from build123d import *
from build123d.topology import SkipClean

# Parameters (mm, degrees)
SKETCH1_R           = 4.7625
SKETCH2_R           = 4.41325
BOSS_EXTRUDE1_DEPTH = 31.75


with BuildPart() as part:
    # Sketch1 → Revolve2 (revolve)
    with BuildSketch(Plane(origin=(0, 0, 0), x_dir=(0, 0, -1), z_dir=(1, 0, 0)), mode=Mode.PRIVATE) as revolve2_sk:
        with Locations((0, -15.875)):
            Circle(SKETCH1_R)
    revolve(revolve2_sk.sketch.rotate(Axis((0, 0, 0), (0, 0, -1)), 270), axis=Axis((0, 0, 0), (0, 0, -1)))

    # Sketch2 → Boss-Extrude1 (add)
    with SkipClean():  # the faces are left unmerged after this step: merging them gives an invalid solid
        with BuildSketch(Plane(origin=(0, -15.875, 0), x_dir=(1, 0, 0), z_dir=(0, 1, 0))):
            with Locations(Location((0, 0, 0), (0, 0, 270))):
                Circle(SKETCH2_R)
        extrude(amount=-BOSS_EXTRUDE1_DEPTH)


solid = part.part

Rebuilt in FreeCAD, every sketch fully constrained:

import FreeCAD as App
import Part
import Sketcher
Q = App.Units.Quantity

doc = App.newDocument("Part")
params = doc.addObject("Spreadsheet::Sheet", "Params")
for row, (alias, value) in enumerate([
    ("sketch1_diameter", "0.375 in"),
    ("revolution_angle", "360 deg"),
    ("pad1_length", "1.25 in"),
], start=1):
    params.set(f"A{row}", alias)
    params.set(f"B{row}", "=" + value)
    params.setAlias(f"B{row}", alias)

body = doc.addObject("PartDesign::Body", "Body")

# Sketch on YZ plane
sketch1 = body.newObject("Sketcher::SketchObject", "Sketch")
sketch1.AttachmentSupport = (doc.getObject("YZ_Plane"), [""])
sketch1.MapMode = "FlatFace"
sketch1.addGeometry(Part.Circle(App.Vector(-15.875, 0, 0), App.Vector(0, 0, 1), 4.7625), False)
sketch1.addConstraint([
    Sketcher.Constraint("PointOnObject", 0, 3, -1),
    Sketcher.Constraint("Diameter", 0, Q("0.375 in")),
    Sketcher.Constraint("DistanceX", 0, 3, -1, 1, Q("0.625 in")),
])
sketch1.setExpression("Constraints[1]", "Params.sketch1_diameter")
revolution = body.newObject("PartDesign::Revolution", "Revolution")
revolution.Profile = sketch1
revolution.ReferenceAxis = (sketch1, ["V_Axis"])
revolution.setExpression("Angle", "Params.revolution_angle")

# Sketch on XZ plane
sketch2 = body.newObject("Sketcher::SketchObject", "Sketch001")
sketch2.AttachmentSupport = (doc.getObject("XZ_Plane"), [""])
sketch2.MapMode = "FlatFace"
sketch2.AttachmentOffset = App.Placement(App.Vector(0, 0, 0.625 * 25.4), App.Rotation())
sketch2.addGeometry(Part.Circle(App.Vector(0, 0, 0), App.Vector(0, 0, 1), 4.41325), False)
sketch2.addConstraint([
    Sketcher.Constraint("Coincident", 0, 3, -1, 1),
    Sketcher.Constraint("Diameter", 0, Q("0.3475 in")),
])
pad1 = body.newObject("PartDesign::Pad", "Pad")
pad1.Profile = sketch2
pad1.setExpression("Length", "Params.pad1_length")

doc.recompute()
